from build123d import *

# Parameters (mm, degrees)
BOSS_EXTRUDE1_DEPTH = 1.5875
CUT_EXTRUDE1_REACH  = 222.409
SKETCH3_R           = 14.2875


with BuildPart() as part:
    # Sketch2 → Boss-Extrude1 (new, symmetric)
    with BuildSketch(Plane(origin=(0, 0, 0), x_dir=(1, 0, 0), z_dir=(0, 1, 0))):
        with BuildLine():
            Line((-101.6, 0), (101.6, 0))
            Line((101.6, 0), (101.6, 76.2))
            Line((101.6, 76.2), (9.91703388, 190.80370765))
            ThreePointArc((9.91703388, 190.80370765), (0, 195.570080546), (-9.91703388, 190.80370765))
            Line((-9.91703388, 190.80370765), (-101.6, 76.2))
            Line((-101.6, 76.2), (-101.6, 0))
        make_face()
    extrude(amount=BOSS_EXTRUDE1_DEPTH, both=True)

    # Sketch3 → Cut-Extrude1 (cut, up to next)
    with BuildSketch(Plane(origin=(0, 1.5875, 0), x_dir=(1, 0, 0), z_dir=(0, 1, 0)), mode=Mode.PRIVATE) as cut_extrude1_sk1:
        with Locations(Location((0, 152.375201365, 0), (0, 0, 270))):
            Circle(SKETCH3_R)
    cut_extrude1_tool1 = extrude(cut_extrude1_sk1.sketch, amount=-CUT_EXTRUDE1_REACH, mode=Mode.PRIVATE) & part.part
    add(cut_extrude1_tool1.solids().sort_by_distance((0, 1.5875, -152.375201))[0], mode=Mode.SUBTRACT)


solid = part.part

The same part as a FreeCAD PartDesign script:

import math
import FreeCAD as App
import Part
import Sketcher
Q = App.Units.Quantity

doc = App.newDocument("Part")
body = doc.addObject("PartDesign::Body", "Body")

sketch1 = body.newObject("Sketcher::SketchObject", "Sketch")
sketch1.AttachmentSupport = (doc.getObject("XZ_Plane"), [""])
sketch1.MapMode = "FlatFace"
sketch1.addGeometry([
    Part.LineSegment(App.Vector(-102, 0, 0), App.Vector(102, 0, 0)),
    Part.LineSegment(App.Vector(102, 0, 0), App.Vector(102, -76, 0)),
    Part.LineSegment(App.Vector(102, -76, 0), App.Vector(10, -191, 0)),
    Part.ArcOfCircle(Part.Circle(App.Vector(0, -183, 0), App.Vector(0, 0, 1), 13), math.radians(-141), math.radians(-39)),
    Part.LineSegment(App.Vector(-10, -191, 0), App.Vector(-102, -76, 0)),
    Part.LineSegment(App.Vector(-102, -76, 0), App.Vector(-102, 0, 0)),
], False)
sketch1.addConstraint([
    Sketcher.Constraint("Coincident", 0, 2, 1, 1),
    Sketcher.Constraint("Coincident", 1, 2, 2, 1),
    Sketcher.Constraint("Tangent", 2, 2, 3, 2),
    Sketcher.Constraint("Tangent", 3, 1, 4, 1),
    Sketcher.Constraint("Coincident", 4, 2, 5, 1),
    Sketcher.Constraint("Coincident", 5, 2, 0, 1),
    Sketcher.Constraint("Horizontal", 0),
    Sketcher.Constraint("Vertical", 1),
    Sketcher.Constraint("Vertical", 5),
    Sketcher.Constraint("Symmetric", 0, 2, 5, 2, -1, 1),
    Sketcher.Constraint("Symmetric", 2, 2, 3, 1, -2),
    Sketcher.Constraint("Radius", 3, Q("0.5 in")),
    Sketcher.Constraint("DistanceX", 0, 1, 0, 2, Q("8 in")),
    Sketcher.Constraint("DistanceY", 1, 2, 1, 1, Q("3 in")),
    Sketcher.Constraint("DistanceY", 3, 3, -1, 1, 182.870081),
])
pad1 = body.newObject("PartDesign::Pad", "Pad")
pad1.Profile = sketch1
pad1.Length = Q("0.125 in")
pad1.Midplane = True

sketch2 = body.newObject("Sketcher::SketchObject", "Sketch001")
sketch2.AttachmentSupport = (doc.getObject("XZ_Plane"), [""])
sketch2.MapMode = "FlatFace"
sketch2.AttachmentOffset = App.Placement(App.Vector(0, 0, -0.0625 * 25.4), App.Rotation())
sketch2.addGeometry(Part.Circle(App.Vector(0, -152, 0), App.Vector(0, 0, 1), 14), False)
sketch2.addConstraint([
    Sketcher.Constraint("PointOnObject", 0, 3, -2),
    Sketcher.Constraint("Diameter", 0, Q("1.125 in")),
    Sketcher.Constraint("DistanceY", 0, 3, -1, 1, 152.375201),
])
pocket1 = body.newObject("PartDesign::Pocket", "Pocket")
pocket1.Profile = sketch2
pocket1.Type = "UpToFirst"
pocket1.Reversed = True

doc.recompute()
